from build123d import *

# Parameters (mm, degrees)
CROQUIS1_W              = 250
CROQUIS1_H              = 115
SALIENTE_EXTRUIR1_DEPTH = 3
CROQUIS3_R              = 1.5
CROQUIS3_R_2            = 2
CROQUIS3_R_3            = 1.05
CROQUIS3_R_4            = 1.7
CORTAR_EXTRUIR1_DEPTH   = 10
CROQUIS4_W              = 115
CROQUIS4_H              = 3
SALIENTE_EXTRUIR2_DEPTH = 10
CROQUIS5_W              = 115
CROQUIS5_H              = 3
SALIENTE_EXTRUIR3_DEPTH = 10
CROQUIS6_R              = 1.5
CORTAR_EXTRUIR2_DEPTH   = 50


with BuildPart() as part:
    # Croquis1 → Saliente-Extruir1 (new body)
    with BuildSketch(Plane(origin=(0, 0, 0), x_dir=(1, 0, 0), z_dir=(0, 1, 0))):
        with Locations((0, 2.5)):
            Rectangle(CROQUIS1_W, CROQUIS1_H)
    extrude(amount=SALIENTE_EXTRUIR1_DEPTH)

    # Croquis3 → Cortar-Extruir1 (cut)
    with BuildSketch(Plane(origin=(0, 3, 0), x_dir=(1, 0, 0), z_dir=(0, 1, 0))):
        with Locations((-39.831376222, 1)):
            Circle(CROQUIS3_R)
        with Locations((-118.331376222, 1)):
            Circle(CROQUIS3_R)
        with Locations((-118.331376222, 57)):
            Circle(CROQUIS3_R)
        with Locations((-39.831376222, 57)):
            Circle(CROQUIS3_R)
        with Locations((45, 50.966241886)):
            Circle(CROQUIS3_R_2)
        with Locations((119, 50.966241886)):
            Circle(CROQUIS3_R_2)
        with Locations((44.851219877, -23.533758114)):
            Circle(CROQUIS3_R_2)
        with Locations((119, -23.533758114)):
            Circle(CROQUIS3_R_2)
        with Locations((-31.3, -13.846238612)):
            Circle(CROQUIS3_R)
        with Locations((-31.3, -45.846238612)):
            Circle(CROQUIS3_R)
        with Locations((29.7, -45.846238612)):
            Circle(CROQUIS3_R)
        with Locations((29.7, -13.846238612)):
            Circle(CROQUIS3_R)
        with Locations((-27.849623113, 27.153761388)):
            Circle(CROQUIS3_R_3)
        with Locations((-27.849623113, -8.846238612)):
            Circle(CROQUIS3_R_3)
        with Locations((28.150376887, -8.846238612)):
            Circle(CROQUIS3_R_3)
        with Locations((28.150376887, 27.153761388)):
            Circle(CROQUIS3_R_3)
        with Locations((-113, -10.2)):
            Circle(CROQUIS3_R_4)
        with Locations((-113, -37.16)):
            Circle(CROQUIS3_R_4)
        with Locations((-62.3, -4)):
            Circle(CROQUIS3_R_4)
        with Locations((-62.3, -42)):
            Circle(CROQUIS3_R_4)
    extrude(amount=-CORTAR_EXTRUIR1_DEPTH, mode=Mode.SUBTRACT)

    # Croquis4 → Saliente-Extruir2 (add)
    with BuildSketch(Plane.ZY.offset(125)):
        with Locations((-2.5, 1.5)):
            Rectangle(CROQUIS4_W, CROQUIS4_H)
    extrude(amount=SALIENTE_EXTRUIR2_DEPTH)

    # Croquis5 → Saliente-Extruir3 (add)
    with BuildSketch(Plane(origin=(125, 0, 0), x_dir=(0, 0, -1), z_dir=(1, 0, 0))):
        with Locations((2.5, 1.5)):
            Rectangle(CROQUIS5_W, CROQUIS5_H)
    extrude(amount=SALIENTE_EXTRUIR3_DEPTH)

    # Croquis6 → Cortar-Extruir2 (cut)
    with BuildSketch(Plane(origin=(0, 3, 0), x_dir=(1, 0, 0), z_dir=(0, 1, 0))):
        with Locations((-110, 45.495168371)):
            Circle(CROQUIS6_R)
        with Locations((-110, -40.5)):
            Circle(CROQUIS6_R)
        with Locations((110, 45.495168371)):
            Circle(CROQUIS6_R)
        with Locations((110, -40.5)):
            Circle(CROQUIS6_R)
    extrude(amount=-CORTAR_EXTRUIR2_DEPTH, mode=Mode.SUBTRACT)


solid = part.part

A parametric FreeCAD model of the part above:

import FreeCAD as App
import Part
import Sketcher
from FreeCAD import Vector
Q = App.Units.Quantity


def add_polygon(sketch, points):
    """Adds a closed chain of lines whose ends are joined by coincident constraints."""
    first, n = sketch.GeometryCount, len(points)
    for a, b in zip(points, points[1:] + points[:1]):
        sketch.addGeometry(Part.LineSegment(App.Vector(*a, 0), App.Vector(*b, 0)), False)
    for i in range(n):
        sketch.addConstraint(Sketcher.Constraint("Coincident", first + i, 2, first + (i + 1) % n, 1))

doc = App.newDocument("Part")
body = doc.addObject("PartDesign::Body", "Body")

# Sketch on XZ plane
sketch1 = doc.addObject("Sketcher::SketchObject", "Sketch")
body.addObject(sketch1)
sketch1.AttachmentSupport = (doc.XZ_Plane, [""])
sketch1.MapMode = "FlatFace"
add_polygon(sketch1, [(-125, -60), (-125, 55), (125, 55), (125, -60)])  # lines 0-3
sketch1.addConstraint([
    Sketcher.Constraint("Vertical", 0),
    Sketcher.Constraint("Horizontal", 1),
    Sketcher.Constraint("Vertical", 2),
    Sketcher.Constraint("Horizontal", 3),
    Sketcher.Constraint("DistanceX", 1, 1, 1, 2, Q("250 mm")),
    Sketcher.Constraint("DistanceY", 0, 1, 0, 2, Q("115 mm")),
    Sketcher.Constraint("DistanceX", 0, 2, -1, 1, Q("125 mm")),
    Sketcher.Constraint("DistanceY", -1, 1, 0, 2, Q("55 mm")),
])
pad1 = doc.addObject("PartDesign::Pad", "Pad")
body.addObject(pad1)
pad1.Profile = sketch1
pad1.Length = 3
pad1.Reversed = True

# Sketch on XZ plane
sketch2 = doc.addObject("Sketcher::SketchObject", "Sketch001")
body.addObject(sketch2)
sketch2.AttachmentSupport = (doc.XZ_Plane, [""])
sketch2.MapMode = "FlatFace"
sketch2.AttachmentOffset = App.Placement(Vector(0, 0, -3), App.Rotation())
sketch2.addGeometry([
    Part.Circle(Vector(-39.831376, -1, 0), Vector(0, 0, 1), 1.5),  # 0
    Part.Circle(Vector(-118.331376, -1, 0), Vector(0, 0, 1), 1.5),  # 1
    Part.Circle(Vector(-118.331376, -57, 0), Vector(0, 0, 1), 1.5),  # 2
    Part.Circle(Vector(-39.831376, -57, 0), Vector(0, 0, 1), 1.5),  # 3
    Part.Circle(Vector(45, -50.966242, 0), Vector(0, 0, 1), 2),  # 4
    Part.Circle(Vector(119, -50.966242, 0), Vector(0, 0, 1), 2),  # 5
    Part.Circle(Vector(44.85122, 23.533758, 0), Vector(0, 0, 1), 2),  # 6
    Part.Circle(Vector(119, 23.533758, 0), Vector(0, 0, 1), 2),  # 7
    Part.Circle(Vector(-31.3, 13.846239, 0), Vector(0, 0, 1), 1.5),  # 8
    Part.Circle(Vector(-31.3, 45.846239, 0), Vector(0, 0, 1), 1.5),  # 9
    Part.Circle(Vector(29.7, 45.846239, 0), Vector(0, 0, 1), 1.5),  # 10
    Part.Circle(Vector(29.7, 13.846239, 0), Vector(0, 0, 1), 1.5),  # 11
    Part.Circle(Vector(-27.849623, -27.153761, 0), Vector(0, 0, 1), 1.05),  # 12
    Part.Circle(Vector(-27.849623, 8.846239, 0), Vector(0, 0, 1), 1.05),  # 13
    Part.Circle(Vector(28.150377, 8.846239, 0), Vector(0, 0, 1), 1.05),  # 14
    Part.Circle(Vector(28.150377, -27.153761, 0), Vector(0, 0, 1), 1.05),  # 15
    Part.Circle(Vector(-113, 10.2, 0), Vector(0, 0, 1), 1.7),  # 16
    Part.Circle(Vector(-113, 37.16, 0), Vector(0, 0, 1), 1.7),  # 17
    Part.Circle(Vector(-62.3, 4, 0), Vector(0, 0, 1), 1.7),  # 18
    Part.Circle(Vector(-62.3, 42, 0), Vector(0, 0, 1), 1.7),  # 19
], False)
sketch2.addConstraint([
    Sketcher.Constraint("Equal", 0, 1),
    Sketcher.Constraint("Equal", 1, 2),
    Sketcher.Constraint("Equal", 2, 3),
    Sketcher.Constraint("Equal", 4, 5),
    Sketcher.Constraint("Equal", 5, 6),
    Sketcher.Constraint("Equal", 6, 7),
    Sketcher.Constraint("Equal", 3, 8),
    Sketcher.Constraint("Equal", 8, 9),
    Sketcher.Constraint("Equal", 9, 10),
    Sketcher.Constraint("Equal", 10, 11),
    Sketcher.Constraint("Equal", 12, 13),
    Sketcher.Constraint("Equal", 13, 14),
    Sketcher.Constraint("Equal", 14, 15),
    Sketcher.Constraint("Equal", 16, 17),
    Sketcher.Constraint("Equal", 17, 18),
    Sketcher.Constraint("Equal", 18, 19),
    Sketcher.Constraint("Horizontal", 0, 3, 1, 3),
    Sketcher.Constraint("Horizontal", 2, 3, 3, 3),
    Sketcher.Constraint("Horizontal", 4, 3, 5, 3),
    Sketcher.Constraint("Horizontal", 6, 3, 7, 3),
    Sketcher.Constraint("Horizontal", 9, 3, 10, 3),
    Sketcher.Constraint("Horizontal", 8, 3, 11, 3),
    Sketcher.Constraint("Horizontal", 13, 3, 14, 3),
    Sketcher.Constraint("Horizontal", 12, 3, 15, 3),
    Sketcher.Constraint("Vertical", 1, 3, 2, 3),
    Sketcher.Constraint("Vertical", 0, 3, 3, 3),
    Sketcher.Constraint("Vertical", 5, 3, 7, 3),
    Sketcher.Constraint("Vertical", 8, 3, 9, 3),
    Sketcher.Constraint("Vertical", 10, 3, 11, 3),
    Sketcher.Constraint("Vertical", 12, 3, 13, 3),
    Sketcher.Constraint("Vertical", 14, 3, 15, 3),
    Sketcher.Constraint("Vertical", 16, 3, 17, 3),
    Sketcher.Constraint("Vertical", 18, 3, 19, 3),
    Sketcher.Constraint("Diameter", 0, Q("3 mm")),
    Sketcher.Constraint("Diameter", 4, Q("4 mm")),
    Sketcher.Constraint("Diameter", 12, Q("2.1 mm")),
    Sketcher.Constraint("Diameter", 16, Q("3.4 mm")),
    Sketcher.Constraint("DistanceY", 0, 3, -1, 1, Q("1 mm")),
    Sketcher.Constraint("DistanceY", 2, 3, -1, 1, Q("57 mm")),
    Sketcher.Constraint("DistanceX", -1, 1, 4, 3, Q("45 mm")),
    Sketcher.Constraint("DistanceX", -1, 1, 5, 3, Q("119 mm")),
    Sketcher.Constraint("DistanceX", 16, 3, -1, 1, Q("113 mm")),
    Sketcher.Constraint("DistanceY", -1, 1, 18, 3, Q("4 mm")),
    Sketcher.Constraint("DistanceY", -1, 1, 19, 3, Q("42 mm")),
    Sketcher.Constraint("DistanceY", 8, 3, 9, 3, Q("32 mm")),
    Sketcher.Constraint("DistanceX", 9, 3, 10, 3, Q("61 mm")),
    Sketcher.Constraint("DistanceY", 12, 3, 8, 3, Q("41 mm")),
    Sketcher.Constraint("DistanceY", 13, 3, 8, 3, Q("5 mm")),
    Sketcher.Constraint("DistanceX", 13, 3, 14, 3, Q("56 mm")),
    Sketcher.Constraint("DistanceX", 18, 3, 8, 3, Q("31 mm")),
    Sketcher.Constraint("DistanceX", 8, 3, -1, 1, Q("31.3 mm")),
    Sketcher.Constraint("DistanceY", -1, 1, 16, 3, Q("10.2 mm")),
    Sketcher.Constraint("DistanceX", 1, 3, 0, 3, Q("78.5 mm")),
    Sketcher.Constraint("DistanceY", 4, 3, 6, 3, Q("74.5 mm")),
    Sketcher.Constraint("DistanceY", -1, 1, 17, 3, Q("37.16 mm")),
    Sketcher.Constraint("DistanceY", 4, 3, -1, 1, Q("50.966242 mm")),
    Sketcher.Constraint("DistanceX", -1, 1, 6, 3, Q("44.85122 mm")),
    Sketcher.Constraint("DistanceY", -1, 1, 8, 3, Q("13.846239 mm")),
    Sketcher.Constraint("DistanceX", 0, 3, -1, 1, Q("39.831376 mm")),
    Sketcher.Constraint("DistanceX", 12, 3, -1, 1, Q("27.849623 mm")),
])
pocket1 = doc.addObject("PartDesign::Pocket", "Pocket")
body.addObject(pocket1)
pocket1.Profile = sketch2
pocket1.Length = 10
pocket1.Reversed = True

# Sketch on YZ plane
sketch3 = doc.addObject("Sketcher::SketchObject", "Sketch002")
body.addObject(sketch3)
sketch3.AttachmentSupport = (doc.YZ_Plane, [""])
sketch3.MapMode = "FlatFace"
sketch3.AttachmentOffset = App.Placement(Vector(0, 0, -125), App.Rotation())
add_polygon(sketch3, [(3, -60), (0, -60), (0, 55), (3, 55)])  # lines 0-3
sketch3.addConstraint([
    Sketcher.Constraint("Horizontal", 0),
    Sketcher.Constraint("Vertical", 1),
    Sketcher.Constraint("Horizontal", 2),
    Sketcher.Constraint("Vertical", 3),
    Sketcher.Constraint("PointOnObject", 0, 2, -2),
    Sketcher.Constraint("DistanceX", 0, 2, 0, 1, Q("3 mm")),
    Sketcher.Constraint("DistanceY", 1, 1, 1, 2, Q("115 mm")),
    Sketcher.Constraint("DistanceY", 0, 2, -1, 1, Q("60 mm")),
])
pad2 = doc.addObject("PartDesign::Pad", "Pad001")
body.addObject(pad2)
pad2.Profile = sketch3
pad2.Length = 10
pad2.Reversed = True

# Sketch on YZ plane
sketch4 = doc.addObject("Sketcher::SketchObject", "Sketch003")
body.addObject(sketch4)
sketch4.AttachmentSupport = (doc.YZ_Plane, [""])
sketch4.MapMode = "FlatFace"
sketch4.AttachmentOffset = App.Placement(Vector(0, 0, 125), App.Rotation())
add_polygon(sketch4, [(3, 55), (0, 55), (0, -60), (3, -60)])  # lines 0-3
sketch4.addConstraint([
    Sketcher.Constraint("Horizontal", 0),
    Sketcher.Constraint("Vertical", 1),
    Sketcher.Constraint("Horizontal", 2),
    Sketcher.Constraint("Vertical", 3),
    Sketcher.Constraint("PointOnObject", 0, 2, -2),
    Sketcher.Constraint("DistanceX", 0, 2, 0, 1, Q("3 mm")),
    Sketcher.Constraint("DistanceY", 1, 2, 1, 1, Q("115 mm")),
    Sketcher.Constraint("DistanceY", -1, 1, 0, 2, Q("55 mm")),
])
pad3 = doc.addObject("PartDesign::Pad", "Pad002")
body.addObject(pad3)
pad3.Profile = sketch4
pad3.Length = 10

# Sketch on XZ plane
sketch5 = doc.addObject("Sketcher::SketchObject", "Sketch004")
body.addObject(sketch5)
sketch5.AttachmentSupport = (doc.XZ_Plane, [""])
sketch5.MapMode = "FlatFace"
sketch5.AttachmentOffset = App.Placement(Vector(0, 0, -3), App.Rotation())
sketch5.addGeometry([
    Part.Circle(Vector(-110, -45.495168, 0), Vector(0, 0, 1), 1.5),
    Part.Circle(Vector(-110, 40.5, 0), Vector(0, 0, 1), 1.5),
    Part.Circle(Vector(110, -45.495168, 0), Vector(0, 0, 1), 1.5),
    Part.Circle(Vector(110, 40.5, 0), Vector(0, 0, 1), 1.5),
], False)
sketch5.addConstraint([
    Sketcher.Constraint("Equal", 0, 1),
    Sketcher.Constraint("Equal", 1, 2),
    Sketcher.Constraint("Equal", 2, 3),
    Sketcher.Constraint("Symmetric", 0, 3, 2, 3, -2),
    Sketcher.Constraint("Symmetric", 1, 3, 3, 3, -2),
    Sketcher.Constraint("Vertical", 0, 3, 1, 3),
    Sketcher.Constraint("Diameter", 0, Q("3 mm")),
    Sketcher.Constraint("DistanceX", 0, 3, -1, 1, Q("110 mm")),
    Sketcher.Constraint("DistanceY", -1, 1, 1, 3, Q("40.5 mm")),
    Sketcher.Constraint("DistanceY", 0, 3, -1, 1, Q("45.495168 mm")),
])
pocket2 = doc.addObject("PartDesign::Pocket", "Pocket001")
body.addObject(pocket2)
pocket2.Profile = sketch5
pocket2.Length = 50
pocket2.Reversed = True

doc.recompute()
